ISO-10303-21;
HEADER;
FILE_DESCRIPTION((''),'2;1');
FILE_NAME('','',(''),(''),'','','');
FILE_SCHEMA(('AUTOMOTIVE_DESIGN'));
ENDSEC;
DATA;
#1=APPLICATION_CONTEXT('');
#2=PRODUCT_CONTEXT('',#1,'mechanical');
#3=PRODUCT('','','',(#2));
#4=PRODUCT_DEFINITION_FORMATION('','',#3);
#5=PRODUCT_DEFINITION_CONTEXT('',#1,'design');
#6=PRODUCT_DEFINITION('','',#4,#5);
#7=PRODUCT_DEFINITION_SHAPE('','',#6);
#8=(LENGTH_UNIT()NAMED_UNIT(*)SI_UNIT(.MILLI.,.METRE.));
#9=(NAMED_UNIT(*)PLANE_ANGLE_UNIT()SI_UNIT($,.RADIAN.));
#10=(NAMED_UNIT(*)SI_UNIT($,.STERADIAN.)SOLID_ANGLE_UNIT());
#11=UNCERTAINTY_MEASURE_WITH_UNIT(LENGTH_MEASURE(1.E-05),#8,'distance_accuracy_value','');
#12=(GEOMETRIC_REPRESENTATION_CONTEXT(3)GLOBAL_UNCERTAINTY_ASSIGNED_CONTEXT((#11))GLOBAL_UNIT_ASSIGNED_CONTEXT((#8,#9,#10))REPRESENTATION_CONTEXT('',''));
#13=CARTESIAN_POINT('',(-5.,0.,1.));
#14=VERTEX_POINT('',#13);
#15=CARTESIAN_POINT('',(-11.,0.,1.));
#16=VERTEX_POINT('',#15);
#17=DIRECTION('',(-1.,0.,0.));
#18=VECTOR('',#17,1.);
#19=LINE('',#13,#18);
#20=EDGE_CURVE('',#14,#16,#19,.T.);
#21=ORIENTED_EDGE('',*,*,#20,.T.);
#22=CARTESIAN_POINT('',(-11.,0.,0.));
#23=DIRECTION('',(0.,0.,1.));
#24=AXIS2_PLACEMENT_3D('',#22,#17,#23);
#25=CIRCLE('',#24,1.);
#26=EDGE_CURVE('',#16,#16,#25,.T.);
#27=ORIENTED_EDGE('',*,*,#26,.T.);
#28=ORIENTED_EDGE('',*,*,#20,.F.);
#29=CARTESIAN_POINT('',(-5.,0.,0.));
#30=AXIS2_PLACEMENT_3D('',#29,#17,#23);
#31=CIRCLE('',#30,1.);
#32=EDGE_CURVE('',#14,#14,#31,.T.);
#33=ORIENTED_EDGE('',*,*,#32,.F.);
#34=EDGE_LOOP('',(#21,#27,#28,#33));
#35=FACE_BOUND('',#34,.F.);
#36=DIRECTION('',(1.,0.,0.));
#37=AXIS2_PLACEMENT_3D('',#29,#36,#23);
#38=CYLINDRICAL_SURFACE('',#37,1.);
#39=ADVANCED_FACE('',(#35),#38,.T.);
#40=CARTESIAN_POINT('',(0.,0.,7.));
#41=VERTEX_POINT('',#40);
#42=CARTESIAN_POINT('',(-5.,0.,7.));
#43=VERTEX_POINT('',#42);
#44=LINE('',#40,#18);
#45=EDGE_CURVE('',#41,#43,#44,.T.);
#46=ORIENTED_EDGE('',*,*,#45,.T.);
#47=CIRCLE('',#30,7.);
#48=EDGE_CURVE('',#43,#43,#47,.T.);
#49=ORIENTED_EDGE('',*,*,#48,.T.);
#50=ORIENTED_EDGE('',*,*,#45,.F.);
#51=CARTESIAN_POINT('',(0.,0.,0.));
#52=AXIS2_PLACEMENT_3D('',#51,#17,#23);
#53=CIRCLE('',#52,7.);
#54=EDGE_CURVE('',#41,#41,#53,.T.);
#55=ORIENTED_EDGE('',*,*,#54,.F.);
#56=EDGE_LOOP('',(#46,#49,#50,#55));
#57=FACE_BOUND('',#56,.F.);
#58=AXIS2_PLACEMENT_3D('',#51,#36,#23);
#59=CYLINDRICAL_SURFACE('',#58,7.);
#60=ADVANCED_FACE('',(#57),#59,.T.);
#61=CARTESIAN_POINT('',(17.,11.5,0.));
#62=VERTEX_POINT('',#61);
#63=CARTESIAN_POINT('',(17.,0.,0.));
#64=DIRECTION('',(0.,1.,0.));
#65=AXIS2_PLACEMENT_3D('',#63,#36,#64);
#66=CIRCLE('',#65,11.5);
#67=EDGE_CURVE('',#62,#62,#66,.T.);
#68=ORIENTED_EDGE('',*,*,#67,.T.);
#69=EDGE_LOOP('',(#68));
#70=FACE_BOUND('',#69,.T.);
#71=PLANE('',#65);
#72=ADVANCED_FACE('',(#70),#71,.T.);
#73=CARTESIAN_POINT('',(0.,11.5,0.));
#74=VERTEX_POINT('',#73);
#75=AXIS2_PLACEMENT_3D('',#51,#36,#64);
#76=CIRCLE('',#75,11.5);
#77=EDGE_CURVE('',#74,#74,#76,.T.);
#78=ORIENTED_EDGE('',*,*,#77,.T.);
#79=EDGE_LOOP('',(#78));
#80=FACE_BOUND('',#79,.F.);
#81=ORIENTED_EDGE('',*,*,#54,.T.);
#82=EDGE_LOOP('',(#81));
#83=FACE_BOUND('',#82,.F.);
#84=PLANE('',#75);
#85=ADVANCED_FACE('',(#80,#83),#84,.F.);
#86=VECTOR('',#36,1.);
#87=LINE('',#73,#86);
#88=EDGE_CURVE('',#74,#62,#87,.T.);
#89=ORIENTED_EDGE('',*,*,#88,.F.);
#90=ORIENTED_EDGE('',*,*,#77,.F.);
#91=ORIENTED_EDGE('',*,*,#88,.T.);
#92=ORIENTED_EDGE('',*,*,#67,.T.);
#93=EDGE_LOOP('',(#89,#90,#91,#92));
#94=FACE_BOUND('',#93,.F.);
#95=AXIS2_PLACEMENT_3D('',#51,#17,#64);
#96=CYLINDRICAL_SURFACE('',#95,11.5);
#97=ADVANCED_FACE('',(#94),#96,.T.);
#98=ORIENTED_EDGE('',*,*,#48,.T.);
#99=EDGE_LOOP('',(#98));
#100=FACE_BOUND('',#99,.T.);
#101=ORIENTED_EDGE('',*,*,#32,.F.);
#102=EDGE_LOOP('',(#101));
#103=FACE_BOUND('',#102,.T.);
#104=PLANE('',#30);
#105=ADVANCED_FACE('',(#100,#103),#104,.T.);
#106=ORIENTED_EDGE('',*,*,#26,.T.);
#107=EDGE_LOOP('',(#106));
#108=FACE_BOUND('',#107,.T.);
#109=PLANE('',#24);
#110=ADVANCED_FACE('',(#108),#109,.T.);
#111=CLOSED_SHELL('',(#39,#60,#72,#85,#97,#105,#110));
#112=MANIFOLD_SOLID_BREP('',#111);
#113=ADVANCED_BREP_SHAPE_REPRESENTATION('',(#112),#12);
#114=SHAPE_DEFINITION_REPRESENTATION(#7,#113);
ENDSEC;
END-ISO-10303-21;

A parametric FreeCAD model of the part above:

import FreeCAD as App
import Part
import Sketcher

V = App.Vector
Q = App.Units.Quantity

doc = App.newDocument("Part")
body = doc.addObject("PartDesign::Body", "Body")

sketch1 = doc.addObject("Sketcher::SketchObject", "Sketch")
body.addObject(sketch1)
sketch1.AttachmentSupport = (doc.YZ_Plane, [""])
sketch1.MapMode = "FlatFace"
sketch1.addGeometry(Part.Circle(V(0, 0, 0), V(0, 0, 1), 12), False)
sketch1.addConstraint(Sketcher.Constraint("Coincident", 0, 3, -1, 1))
sketch1.addConstraint(Sketcher.Constraint("Diameter", 0, Q("23 mm")))
pad1 = doc.addObject("PartDesign::Pad", "Pad")
body.addObject(pad1)
pad1.Profile = sketch1
pad1.Length = 17

sketch2 = doc.addObject("Sketcher::SketchObject", "Sketch001")
body.addObject(sketch2)
sketch2.AttachmentSupport = (doc.YZ_Plane, [""])
sketch2.MapMode = "FlatFace"
sketch2.addGeometry(Part.Circle(V(0, 0, 0), V(0, 0, 1), 7), False)
sketch2.addConstraint(Sketcher.Constraint("Coincident", 0, 3, -1, 1))
sketch2.addConstraint(Sketcher.Constraint("Diameter", 0, Q("14 mm")))
pad2 = doc.addObject("PartDesign::Pad", "Pad001")
body.addObject(pad2)
pad2.Profile = sketch2
pad2.Length = 5
pad2.Reversed = True

sketch3 = doc.addObject("Sketcher::SketchObject", "Sketch002")
body.addObject(sketch3)
sketch3.AttachmentSupport = (doc.YZ_Plane, [""])
sketch3.MapMode = "FlatFace"
sketch3.AttachmentOffset = App.Placement(V(0, 0, -5), App.Rotation())
sketch3.addGeometry(Part.Circle(V(0, 0, 0), V(0, 0, 1), 1), False)
sketch3.addConstraint(Sketcher.Constraint("Coincident", 0, 3, -1, 1))
sketch3.addConstraint(Sketcher.Constraint("Diameter", 0, Q("2 mm")))
pad3 = doc.addObject("PartDesign::Pad", "Pad002")
body.addObject(pad3)
pad3.Profile = sketch3
pad3.Length = 6
pad3.Reversed = True

doc.recompute()
